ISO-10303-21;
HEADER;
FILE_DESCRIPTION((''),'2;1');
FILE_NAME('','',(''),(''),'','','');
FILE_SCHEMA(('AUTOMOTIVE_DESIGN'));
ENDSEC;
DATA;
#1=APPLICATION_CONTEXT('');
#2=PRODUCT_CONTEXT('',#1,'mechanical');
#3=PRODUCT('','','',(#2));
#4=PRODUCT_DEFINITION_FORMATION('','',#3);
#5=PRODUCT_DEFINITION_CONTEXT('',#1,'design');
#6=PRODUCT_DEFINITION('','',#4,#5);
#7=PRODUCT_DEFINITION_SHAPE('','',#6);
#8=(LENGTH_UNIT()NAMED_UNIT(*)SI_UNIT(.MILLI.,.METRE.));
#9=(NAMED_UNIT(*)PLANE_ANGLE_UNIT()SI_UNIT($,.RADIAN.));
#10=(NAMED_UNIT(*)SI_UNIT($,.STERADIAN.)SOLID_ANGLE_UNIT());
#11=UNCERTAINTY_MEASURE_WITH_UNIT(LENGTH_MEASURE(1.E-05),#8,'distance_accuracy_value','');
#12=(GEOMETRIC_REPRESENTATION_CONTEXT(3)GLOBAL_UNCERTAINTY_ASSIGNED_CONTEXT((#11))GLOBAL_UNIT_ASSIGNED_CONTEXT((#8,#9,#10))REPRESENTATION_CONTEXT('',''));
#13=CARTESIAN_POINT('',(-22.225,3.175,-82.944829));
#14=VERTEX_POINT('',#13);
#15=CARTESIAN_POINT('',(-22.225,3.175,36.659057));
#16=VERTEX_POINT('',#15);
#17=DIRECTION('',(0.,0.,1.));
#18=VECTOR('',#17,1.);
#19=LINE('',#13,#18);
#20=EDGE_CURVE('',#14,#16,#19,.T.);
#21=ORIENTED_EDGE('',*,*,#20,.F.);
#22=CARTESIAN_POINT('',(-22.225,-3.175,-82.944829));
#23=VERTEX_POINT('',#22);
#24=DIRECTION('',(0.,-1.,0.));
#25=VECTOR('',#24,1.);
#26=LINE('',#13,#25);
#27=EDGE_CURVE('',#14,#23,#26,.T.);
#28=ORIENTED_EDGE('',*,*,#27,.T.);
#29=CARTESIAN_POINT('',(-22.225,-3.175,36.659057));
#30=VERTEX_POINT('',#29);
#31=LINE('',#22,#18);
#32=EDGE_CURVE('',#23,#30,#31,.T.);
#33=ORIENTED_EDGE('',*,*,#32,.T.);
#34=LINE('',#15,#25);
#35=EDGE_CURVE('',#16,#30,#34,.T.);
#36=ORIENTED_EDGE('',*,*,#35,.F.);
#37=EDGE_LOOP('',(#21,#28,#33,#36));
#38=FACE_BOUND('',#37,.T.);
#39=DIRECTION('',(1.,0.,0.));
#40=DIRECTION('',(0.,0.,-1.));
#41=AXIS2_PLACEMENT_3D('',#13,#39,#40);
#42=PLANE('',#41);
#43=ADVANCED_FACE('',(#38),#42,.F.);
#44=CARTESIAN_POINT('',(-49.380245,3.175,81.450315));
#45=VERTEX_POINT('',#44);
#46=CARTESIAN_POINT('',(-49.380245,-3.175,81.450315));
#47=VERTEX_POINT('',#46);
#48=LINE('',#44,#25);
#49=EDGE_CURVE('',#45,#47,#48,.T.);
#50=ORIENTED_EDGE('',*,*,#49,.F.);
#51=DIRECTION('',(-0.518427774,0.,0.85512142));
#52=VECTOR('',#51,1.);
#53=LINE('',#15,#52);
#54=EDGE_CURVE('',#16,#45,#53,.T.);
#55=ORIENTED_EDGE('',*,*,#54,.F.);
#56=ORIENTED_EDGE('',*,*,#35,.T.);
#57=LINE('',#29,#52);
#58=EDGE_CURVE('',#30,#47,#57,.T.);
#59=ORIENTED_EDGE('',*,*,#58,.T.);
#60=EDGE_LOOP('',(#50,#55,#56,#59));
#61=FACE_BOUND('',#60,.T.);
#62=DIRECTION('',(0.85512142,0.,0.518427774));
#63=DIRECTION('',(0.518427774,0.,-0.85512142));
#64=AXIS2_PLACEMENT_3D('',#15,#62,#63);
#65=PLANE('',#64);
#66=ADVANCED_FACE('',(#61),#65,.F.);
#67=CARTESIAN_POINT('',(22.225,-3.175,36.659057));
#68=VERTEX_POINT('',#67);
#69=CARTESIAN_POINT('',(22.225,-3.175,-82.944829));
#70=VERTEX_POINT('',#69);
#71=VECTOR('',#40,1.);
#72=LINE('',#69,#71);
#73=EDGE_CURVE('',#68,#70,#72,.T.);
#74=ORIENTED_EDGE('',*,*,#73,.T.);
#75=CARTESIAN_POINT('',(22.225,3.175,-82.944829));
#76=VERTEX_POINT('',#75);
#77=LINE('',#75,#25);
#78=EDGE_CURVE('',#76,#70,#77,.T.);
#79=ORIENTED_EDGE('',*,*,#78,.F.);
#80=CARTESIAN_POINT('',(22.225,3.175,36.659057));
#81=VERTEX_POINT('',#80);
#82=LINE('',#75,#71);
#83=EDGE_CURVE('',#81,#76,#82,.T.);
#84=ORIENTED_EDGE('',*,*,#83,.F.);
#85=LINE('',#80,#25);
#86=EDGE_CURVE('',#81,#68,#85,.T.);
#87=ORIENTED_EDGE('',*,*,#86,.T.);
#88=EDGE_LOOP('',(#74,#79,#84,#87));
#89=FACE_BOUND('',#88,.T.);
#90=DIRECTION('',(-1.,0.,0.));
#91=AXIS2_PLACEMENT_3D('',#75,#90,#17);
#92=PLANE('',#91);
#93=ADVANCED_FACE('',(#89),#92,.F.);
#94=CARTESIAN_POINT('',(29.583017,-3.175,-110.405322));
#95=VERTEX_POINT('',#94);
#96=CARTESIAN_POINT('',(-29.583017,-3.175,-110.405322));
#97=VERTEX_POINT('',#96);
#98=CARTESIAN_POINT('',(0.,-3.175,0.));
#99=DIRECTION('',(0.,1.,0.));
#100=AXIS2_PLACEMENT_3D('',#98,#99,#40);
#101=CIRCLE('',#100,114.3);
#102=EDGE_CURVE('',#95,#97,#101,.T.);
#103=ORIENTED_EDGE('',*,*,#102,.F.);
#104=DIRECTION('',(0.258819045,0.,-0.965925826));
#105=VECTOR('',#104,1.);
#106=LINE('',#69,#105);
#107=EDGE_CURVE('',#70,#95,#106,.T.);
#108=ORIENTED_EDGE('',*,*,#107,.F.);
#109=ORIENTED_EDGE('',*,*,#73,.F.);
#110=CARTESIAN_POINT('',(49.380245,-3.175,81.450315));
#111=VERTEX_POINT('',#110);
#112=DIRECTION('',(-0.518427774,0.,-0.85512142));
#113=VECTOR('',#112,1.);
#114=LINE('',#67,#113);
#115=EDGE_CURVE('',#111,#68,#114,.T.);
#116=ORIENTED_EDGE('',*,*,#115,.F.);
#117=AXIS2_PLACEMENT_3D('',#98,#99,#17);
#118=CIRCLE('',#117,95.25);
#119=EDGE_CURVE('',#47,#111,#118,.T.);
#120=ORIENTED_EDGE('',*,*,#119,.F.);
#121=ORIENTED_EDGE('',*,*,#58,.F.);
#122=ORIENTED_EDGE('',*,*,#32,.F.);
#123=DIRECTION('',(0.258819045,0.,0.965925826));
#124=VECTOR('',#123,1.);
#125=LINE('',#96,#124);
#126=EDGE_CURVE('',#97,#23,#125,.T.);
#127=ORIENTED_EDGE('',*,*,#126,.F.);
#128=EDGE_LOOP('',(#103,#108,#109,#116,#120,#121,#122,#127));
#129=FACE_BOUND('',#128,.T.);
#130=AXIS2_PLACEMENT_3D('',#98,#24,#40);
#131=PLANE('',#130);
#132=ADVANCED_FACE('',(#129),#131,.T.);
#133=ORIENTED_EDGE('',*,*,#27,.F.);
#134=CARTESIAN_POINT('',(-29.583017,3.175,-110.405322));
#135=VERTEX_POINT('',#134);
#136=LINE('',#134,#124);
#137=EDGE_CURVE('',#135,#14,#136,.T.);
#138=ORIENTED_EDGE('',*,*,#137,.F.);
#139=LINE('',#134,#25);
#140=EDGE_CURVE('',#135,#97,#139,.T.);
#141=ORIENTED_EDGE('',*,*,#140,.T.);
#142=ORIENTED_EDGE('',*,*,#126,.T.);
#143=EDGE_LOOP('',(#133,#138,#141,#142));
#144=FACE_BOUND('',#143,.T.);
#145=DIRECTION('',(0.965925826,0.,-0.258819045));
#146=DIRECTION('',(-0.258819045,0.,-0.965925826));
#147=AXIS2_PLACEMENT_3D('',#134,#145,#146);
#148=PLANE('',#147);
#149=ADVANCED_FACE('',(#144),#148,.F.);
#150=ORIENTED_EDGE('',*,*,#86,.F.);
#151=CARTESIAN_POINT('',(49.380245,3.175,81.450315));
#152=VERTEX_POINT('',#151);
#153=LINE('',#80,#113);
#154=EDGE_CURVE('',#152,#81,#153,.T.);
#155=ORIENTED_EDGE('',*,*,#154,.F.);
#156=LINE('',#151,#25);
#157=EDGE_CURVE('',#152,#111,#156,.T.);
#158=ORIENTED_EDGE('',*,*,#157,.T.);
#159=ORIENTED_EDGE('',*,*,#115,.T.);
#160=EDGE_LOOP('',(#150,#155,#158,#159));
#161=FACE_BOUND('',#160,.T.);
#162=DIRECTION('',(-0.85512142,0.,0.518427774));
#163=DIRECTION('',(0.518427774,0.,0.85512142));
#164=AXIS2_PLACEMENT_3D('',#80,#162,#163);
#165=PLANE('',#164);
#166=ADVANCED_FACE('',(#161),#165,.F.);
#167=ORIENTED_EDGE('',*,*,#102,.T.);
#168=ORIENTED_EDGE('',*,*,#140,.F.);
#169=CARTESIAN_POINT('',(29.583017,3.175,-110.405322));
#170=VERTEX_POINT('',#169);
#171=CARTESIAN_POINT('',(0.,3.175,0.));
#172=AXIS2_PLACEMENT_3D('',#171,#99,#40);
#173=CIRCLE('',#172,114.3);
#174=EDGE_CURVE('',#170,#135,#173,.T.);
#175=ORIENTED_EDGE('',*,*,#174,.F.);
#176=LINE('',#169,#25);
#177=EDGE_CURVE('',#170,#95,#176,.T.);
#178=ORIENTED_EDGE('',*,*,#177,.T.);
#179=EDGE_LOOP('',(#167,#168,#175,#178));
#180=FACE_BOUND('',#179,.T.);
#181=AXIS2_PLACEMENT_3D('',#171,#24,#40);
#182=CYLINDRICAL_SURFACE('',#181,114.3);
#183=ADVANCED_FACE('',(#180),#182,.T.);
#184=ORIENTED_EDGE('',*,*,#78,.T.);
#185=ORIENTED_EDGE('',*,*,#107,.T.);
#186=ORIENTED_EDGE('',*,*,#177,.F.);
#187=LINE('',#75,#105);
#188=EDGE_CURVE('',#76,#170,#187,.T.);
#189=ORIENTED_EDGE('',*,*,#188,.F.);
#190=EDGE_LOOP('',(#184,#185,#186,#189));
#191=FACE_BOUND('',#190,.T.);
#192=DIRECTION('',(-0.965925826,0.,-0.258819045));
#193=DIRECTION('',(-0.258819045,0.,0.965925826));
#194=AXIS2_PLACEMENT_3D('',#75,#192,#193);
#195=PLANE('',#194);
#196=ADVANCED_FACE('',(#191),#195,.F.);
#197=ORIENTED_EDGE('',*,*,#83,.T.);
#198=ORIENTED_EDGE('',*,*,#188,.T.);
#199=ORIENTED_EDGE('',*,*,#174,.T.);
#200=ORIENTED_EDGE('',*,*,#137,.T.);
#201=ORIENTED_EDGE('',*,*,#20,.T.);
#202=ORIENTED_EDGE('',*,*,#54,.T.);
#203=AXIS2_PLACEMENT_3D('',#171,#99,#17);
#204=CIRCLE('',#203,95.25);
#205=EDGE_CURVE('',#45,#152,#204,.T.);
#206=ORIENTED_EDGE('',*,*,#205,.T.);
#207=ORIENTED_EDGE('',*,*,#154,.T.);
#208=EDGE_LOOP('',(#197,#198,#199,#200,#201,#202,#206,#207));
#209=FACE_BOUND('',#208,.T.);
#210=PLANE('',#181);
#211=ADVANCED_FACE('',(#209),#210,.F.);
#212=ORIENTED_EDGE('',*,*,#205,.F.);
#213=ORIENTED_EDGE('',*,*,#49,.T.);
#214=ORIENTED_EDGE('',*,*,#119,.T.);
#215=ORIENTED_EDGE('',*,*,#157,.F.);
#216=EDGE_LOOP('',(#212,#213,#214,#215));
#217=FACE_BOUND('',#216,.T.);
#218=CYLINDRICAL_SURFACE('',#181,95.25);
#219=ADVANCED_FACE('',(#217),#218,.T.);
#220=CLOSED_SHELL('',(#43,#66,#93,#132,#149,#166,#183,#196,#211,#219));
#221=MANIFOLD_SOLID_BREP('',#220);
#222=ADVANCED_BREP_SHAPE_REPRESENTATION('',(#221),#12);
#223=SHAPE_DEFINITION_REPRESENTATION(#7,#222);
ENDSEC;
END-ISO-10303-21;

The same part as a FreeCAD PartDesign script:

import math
import FreeCAD as App
import Part
import Sketcher

V = App.Vector
Q = App.Units.Quantity

doc = App.newDocument("Part")
params = doc.addObject("Spreadsheet::Sheet", "Params")
for row, (alias, value) in enumerate([
    ("sketch1_radius", "4.5 in"),
    ("sketch1_radius2", "3.75 in"),
    ("pad1_length", "0.25 in"),
], start=1):
    params.set(f"A{row}", alias)
    params.set(f"B{row}", "=" + value)
    params.setAlias(f"B{row}", alias)

body = doc.addObject("PartDesign::Body", "Body")

# Sketch on XZ plane
sketch1 = body.newObject("Sketcher::SketchObject", "Sketch")
sketch1.AttachmentSupport = (doc.getObject("XZ_Plane"), [""])
sketch1.MapMode = "FlatFace"
sketch1.addGeometry(Part.LineSegment(V(-22.225, -82.944829, 0), V(-22.225, 36.659057, 0)), False)
sketch1.addGeometry(Part.LineSegment(V(-22.225, 36.659057, 0), V(-49.380245, 81.450315, 0)), False)
sketch1.addGeometry(Part.ArcOfCircle(Part.Circle(V(0, 0, 0), V(0, 0, 1), 95.25), math.radians(58.773151), math.radians(121.226849)), False)
sketch1.addGeometry(Part.LineSegment(V(49.380245, 81.450315, 0), V(22.225, 36.659057, 0)), False)
sketch1.addGeometry(Part.LineSegment(V(22.225, 36.659057, 0), V(22.225, -82.944829, 0)), False)
sketch1.addGeometry(Part.LineSegment(V(22.225, -82.944829, 0), V(29.583017, -110.405322, 0)), False)
sketch1.addGeometry(Part.ArcOfCircle(Part.Circle(V(0, 0, 0), V(0, 0, 1), 114.3), math.radians(-105), math.radians(-75)), False)
sketch1.addGeometry(Part.LineSegment(V(-29.583017, -110.405322, 0), V(-22.225, -82.944829, 0)), False)
sketch1.addConstraint(Sketcher.Constraint("Coincident", 0, 2, 1, 1))
sketch1.addConstraint(Sketcher.Constraint("Coincident", 1, 2, 2, 2))
sketch1.addConstraint(Sketcher.Constraint("Coincident", 2, 1, 3, 1))
sketch1.addConstraint(Sketcher.Constraint("Coincident", 3, 2, 4, 1))
sketch1.addConstraint(Sketcher.Constraint("Coincident", 4, 2, 5, 1))
sketch1.addConstraint(Sketcher.Constraint("Coincident", 5, 2, 6, 2))
sketch1.addConstraint(Sketcher.Constraint("Coincident", 6, 1, 7, 1))
sketch1.addConstraint(Sketcher.Constraint("Coincident", 7, 2, 0, 1))
sketch1.addConstraint(Sketcher.Constraint("Vertical", 0))
sketch1.addConstraint(Sketcher.Constraint("Vertical", 4))
sketch1.addConstraint(Sketcher.Constraint("Coincident", 2, 3, -1, 1))
sketch1.addConstraint(Sketcher.Constraint("Coincident", 6, 3, -1, 1))
sketch1.addConstraint(Sketcher.Constraint("Symmetric", 0, 2, 3, 2, -2))
sketch1.addConstraint(Sketcher.Constraint("Horizontal", 1, 2, 2, 1))
sketch1.addConstraint(Sketcher.Constraint("Horizontal", 5, 2, 6, 1))
sketch1.addConstraint(Sketcher.Constraint("Horizontal", 4, 2, 7, 2))
sketch1.addConstraint(Sketcher.Constraint("Radius", 6, Q("4.5 in")))
sketch1.addConstraint(Sketcher.Constraint("Radius", 2, Q("3.75 in")))
sketch1.addConstraint(Sketcher.Constraint("Angle", 5, Q("-75 deg")))
sketch1.addConstraint(Sketcher.Constraint("DistanceX", 0, 2, 3, 2, Q("1.75 in")))
sketch1.addConstraint(Sketcher.Constraint("DistanceY", 0, 1, 0, 2, Q("119.603887 mm")))
sketch1.addConstraint(Sketcher.Constraint("DistanceY", 4, 2, -1, 1, Q("82.944829 mm")))
sketch1.addConstraint(Sketcher.Constraint("DistanceX", 1, 2, 2, 1, Q("98.760491 mm")))
sketch1.setExpression("Constraints[16]", "Params.sketch1_radius")
sketch1.setExpression("Constraints[17]", "Params.sketch1_radius2")
pad1 = body.newObject("PartDesign::Pad", "Pad")
pad1.Profile = sketch1
pad1.setExpression("Length", "Params.pad1_length")
pad1.Midplane = True

doc.recompute()
